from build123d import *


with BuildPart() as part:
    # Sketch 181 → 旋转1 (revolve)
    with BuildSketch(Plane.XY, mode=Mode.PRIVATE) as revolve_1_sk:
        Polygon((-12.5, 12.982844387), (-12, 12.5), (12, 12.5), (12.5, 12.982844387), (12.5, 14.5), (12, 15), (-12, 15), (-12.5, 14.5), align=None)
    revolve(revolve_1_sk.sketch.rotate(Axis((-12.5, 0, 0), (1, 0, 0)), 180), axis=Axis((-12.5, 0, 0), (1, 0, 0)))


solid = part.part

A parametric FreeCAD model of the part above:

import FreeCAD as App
import Part
import Sketcher
Q = App.Units.Quantity


def add_polygon(sketch, points):
    """Adds a closed chain of lines whose ends are joined by coincident constraints."""
    first, n = sketch.GeometryCount, len(points)
    for a, b in zip(points, points[1:] + points[:1]):
        sketch.addGeometry(Part.LineSegment(App.Vector(*a, 0), App.Vector(*b, 0)), False)
    for i in range(n):
        sketch.addConstraint(Sketcher.Constraint("Coincident", first + i, 2, first + (i + 1) % n, 1))

doc = App.newDocument("Part")
body = doc.addObject("PartDesign::Body", "Body")

sketch1 = body.newObject("Sketcher::SketchObject", "Sketch")
sketch1.AttachmentSupport = (doc.getObject("XY_Plane"), [""])
sketch1.MapMode = "FlatFace"
add_polygon(sketch1, [(-12.5, 13), (-12, 12.5), (12, 12.5), (12.5, 13), (12.5, 14.5), (12, 15), (-12, 15), (-12.5, 14.5)])
sketch1.addConstraint([
    Sketcher.Constraint("Horizontal", 1),
    Sketcher.Constraint("Vertical", 3),
    Sketcher.Constraint("Horizontal", 5),
    Sketcher.Constraint("Vertical", 7),
    Sketcher.Constraint("Symmetric", 3, 2, 6, 2, -2),
    Sketcher.Constraint("Perpendicular", 4, 6),
    Sketcher.Constraint("Horizontal", 2, 2, 7, 2),
    Sketcher.Constraint("Vertical", 1, 2, 4, 2),
    Sketcher.Constraint("Vertical", 0, 2, 5, 2),
    Sketcher.Constraint("Equal", 0, 2),
    Sketcher.Constraint("DistanceX", 1, 1, 1, 2, Q("24 mm")),
    Sketcher.Constraint("Angle", 0, Q("-44 deg")),
    Sketcher.Constraint("DistanceY", -1, 1, 4, 2, Q("15 mm")),
    Sketcher.Constraint("DistanceY", 1, 2, 3, 2, Q("2 mm")),
    Sketcher.Constraint("DistanceX", 6, 2, 3, 2, Q("25 mm")),
])
revolution = body.newObject("PartDesign::Revolution", "Revolution")
revolution.Profile = sketch1
revolution.ReferenceAxis = (sketch1, ["H_Axis"])
revolution.Angle = 360

doc.recompute()
